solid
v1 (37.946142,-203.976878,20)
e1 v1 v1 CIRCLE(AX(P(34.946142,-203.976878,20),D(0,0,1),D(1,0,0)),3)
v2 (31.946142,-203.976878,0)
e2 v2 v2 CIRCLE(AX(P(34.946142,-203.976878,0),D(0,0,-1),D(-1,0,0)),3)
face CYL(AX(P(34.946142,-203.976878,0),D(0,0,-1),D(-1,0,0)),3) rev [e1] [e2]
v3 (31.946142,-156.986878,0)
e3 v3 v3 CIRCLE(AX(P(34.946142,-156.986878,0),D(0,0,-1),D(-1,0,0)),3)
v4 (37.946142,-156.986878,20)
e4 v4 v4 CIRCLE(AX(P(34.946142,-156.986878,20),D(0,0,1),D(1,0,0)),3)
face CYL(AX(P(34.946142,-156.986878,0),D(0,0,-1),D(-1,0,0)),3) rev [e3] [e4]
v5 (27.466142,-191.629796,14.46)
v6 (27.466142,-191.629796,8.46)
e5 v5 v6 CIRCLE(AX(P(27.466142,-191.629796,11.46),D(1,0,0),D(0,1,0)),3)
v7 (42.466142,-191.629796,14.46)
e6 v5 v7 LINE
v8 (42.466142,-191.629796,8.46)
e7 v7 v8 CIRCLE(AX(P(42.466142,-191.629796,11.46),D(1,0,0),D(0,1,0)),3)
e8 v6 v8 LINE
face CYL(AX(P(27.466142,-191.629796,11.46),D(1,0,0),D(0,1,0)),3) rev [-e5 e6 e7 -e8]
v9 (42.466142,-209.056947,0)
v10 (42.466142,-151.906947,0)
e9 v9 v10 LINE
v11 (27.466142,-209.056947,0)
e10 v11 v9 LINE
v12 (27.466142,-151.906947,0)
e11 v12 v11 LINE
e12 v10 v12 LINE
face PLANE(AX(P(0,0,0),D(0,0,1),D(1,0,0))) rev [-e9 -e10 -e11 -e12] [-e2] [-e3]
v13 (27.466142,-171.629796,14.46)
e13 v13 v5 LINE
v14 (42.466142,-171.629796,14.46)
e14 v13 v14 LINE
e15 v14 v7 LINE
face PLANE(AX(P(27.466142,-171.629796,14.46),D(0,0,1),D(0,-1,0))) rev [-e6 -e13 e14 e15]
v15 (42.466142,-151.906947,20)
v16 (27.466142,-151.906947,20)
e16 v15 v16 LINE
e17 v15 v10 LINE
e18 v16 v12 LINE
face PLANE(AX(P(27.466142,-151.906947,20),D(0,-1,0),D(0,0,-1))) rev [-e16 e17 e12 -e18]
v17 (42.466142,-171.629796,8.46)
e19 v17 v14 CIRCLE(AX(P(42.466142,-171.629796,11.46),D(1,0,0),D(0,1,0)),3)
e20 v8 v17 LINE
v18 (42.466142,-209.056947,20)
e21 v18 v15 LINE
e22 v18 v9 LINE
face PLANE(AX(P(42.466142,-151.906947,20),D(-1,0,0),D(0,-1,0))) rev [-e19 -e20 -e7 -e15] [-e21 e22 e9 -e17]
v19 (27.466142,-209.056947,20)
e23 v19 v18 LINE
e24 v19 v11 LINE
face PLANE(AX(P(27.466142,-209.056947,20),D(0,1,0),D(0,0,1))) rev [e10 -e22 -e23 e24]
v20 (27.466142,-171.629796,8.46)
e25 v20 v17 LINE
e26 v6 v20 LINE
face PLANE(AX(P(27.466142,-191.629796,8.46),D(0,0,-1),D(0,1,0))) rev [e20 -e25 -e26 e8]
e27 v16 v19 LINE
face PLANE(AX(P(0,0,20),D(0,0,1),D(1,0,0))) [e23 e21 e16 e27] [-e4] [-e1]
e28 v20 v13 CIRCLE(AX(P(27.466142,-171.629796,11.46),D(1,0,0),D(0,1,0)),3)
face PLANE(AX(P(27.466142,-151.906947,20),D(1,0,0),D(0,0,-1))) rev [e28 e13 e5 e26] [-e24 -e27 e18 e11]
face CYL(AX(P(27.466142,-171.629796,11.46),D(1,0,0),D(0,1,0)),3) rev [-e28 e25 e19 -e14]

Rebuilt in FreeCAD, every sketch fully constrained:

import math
import FreeCAD as App
import Part
import Sketcher

V = App.Vector

doc = App.newDocument("Part")
body = doc.addObject("PartDesign::Body", "Body")

# Sketch on XY plane
sketch1 = doc.addObject("Sketcher::SketchObject", "Sketch")
body.addObject(sketch1)
sketch1.AttachmentSupport = (doc.XY_Plane, [""])
sketch1.MapMode = "FlatFace"
sketch1.addGeometry([
    Part.LineSegment(V(27, -152, 0), V(27, -209, 0)),
    Part.LineSegment(V(27, -209, 0), V(42, -209, 0)),
    Part.LineSegment(V(42, -209, 0), V(42, -152, 0)),
    Part.LineSegment(V(42, -152, 0), V(27, -152, 0)),
], False)
sketch1.addConstraint([
    Sketcher.Constraint("Coincident", 0, 2, 1, 1),
    Sketcher.Constraint("Coincident", 1, 2, 2, 1),
    Sketcher.Constraint("Coincident", 2, 2, 3, 1),
    Sketcher.Constraint("Coincident", 3, 2, 0, 1),
    Sketcher.Constraint("Vertical", 0),
    Sketcher.Constraint("Horizontal", 1),
    Sketcher.Constraint("Vertical", 2),
    Sketcher.Constraint("Horizontal", 3),
    Sketcher.Constraint("DistanceX", 1, 1, 1, 2, 15.0),
    Sketcher.Constraint("DistanceY", 0, 2, 0, 1, 57.15),
    Sketcher.Constraint("DistanceX", -1, 1, 0, 2, 27.466142),
    Sketcher.Constraint("DistanceY", 0, 2, -1, 1, 209.056947),
])
pad1 = doc.addObject("PartDesign::Pad", "Pad")
body.addObject(pad1)
pad1.Profile = sketch1
pad1.Length = 20

# Sketch on XY plane
sketch2 = doc.addObject("Sketcher::SketchObject", "Sketch001")
body.addObject(sketch2)
sketch2.AttachmentSupport = (doc.XY_Plane, [""])
sketch2.MapMode = "FlatFace"
sketch2.addGeometry([
    Part.Circle(V(34.9, -157, 0), V(0, 0, 1), 3),
    Part.Circle(V(34.9, -204, 0), V(0, 0, 1), 3),
], False)
sketch2.addConstraint([
    Sketcher.Constraint("Equal", 0, 1),
    Sketcher.Constraint("Vertical", 0, 3, 1, 3),
    Sketcher.Constraint("Diameter", 0, 6.0),
    Sketcher.Constraint("DistanceY", 1, 3, 0, 3, 46.99),
    Sketcher.Constraint("DistanceX", -1, 1, 0, 3, 34.946142),
    Sketcher.Constraint("DistanceY", 0, 3, -1, 1, 156.986878),
])
doc.recompute()
hole = doc.addObject("PartDesign::Hole", "Hole")
body.addObject(hole)
hole.Profile = sketch2
hole.ThreadType = "None"
hole.Diameter = 6
hole.DepthType = "Dimension"
hole.Depth = 24
hole.DrillPoint = "Angled"
hole.DrillPointAngle = 118
hole.Reversed = True

# Sketch on YZ plane
sketch3 = doc.addObject("Sketcher::SketchObject", "Sketch002")
body.addObject(sketch3)
sketch3.AttachmentSupport = (doc.YZ_Plane, [""])
sketch3.MapMode = "FlatFace"
sketch3.AttachmentOffset = App.Placement(V(0, 0, 42.466142), App.Rotation())
sketch3.addGeometry([
    Part.LineSegment(V(-171.6, 14.5, 0), V(-191.6, 14.5, 0)),
    Part.ArcOfCircle(Part.Circle(V(-191.6, 11.5, 0), V(0, 0, 1), 3), math.radians(90), math.radians(270)),
    Part.LineSegment(V(-191.6, 8.5, 0), V(-171.6, 8.5, 0)),
    Part.ArcOfCircle(Part.Circle(V(-171.6, 11.5, 0), V(0, 0, 1), 3), math.radians(-90), math.radians(90)),
], False)
sketch3.addConstraint([
    Sketcher.Constraint("Tangent", 0, 2, 1, 1),
    Sketcher.Constraint("Tangent", 1, 2, 2, 1),
    Sketcher.Constraint("Tangent", 2, 2, 3, 1),
    Sketcher.Constraint("Tangent", 3, 2, 0, 1),
    Sketcher.Constraint("Horizontal", 0),
    Sketcher.Constraint("Horizontal", 2),
    Sketcher.Constraint("Radius", 1, 3.0),
    Sketcher.Constraint("DistanceX", 0, 2, 0, 1, 20.0),
    Sketcher.Constraint("DistanceY", -1, 1, 1, 3, 11.46),
    Sketcher.Constraint("DistanceX", 1, 3, -1, 1, 191.629796),
])
pocket1 = doc.addObject("PartDesign::Pocket", "Pocket")
body.addObject(pocket1)
pocket1.Profile = sketch3
pocket1.Type = "ThroughAll"

doc.recompute()
